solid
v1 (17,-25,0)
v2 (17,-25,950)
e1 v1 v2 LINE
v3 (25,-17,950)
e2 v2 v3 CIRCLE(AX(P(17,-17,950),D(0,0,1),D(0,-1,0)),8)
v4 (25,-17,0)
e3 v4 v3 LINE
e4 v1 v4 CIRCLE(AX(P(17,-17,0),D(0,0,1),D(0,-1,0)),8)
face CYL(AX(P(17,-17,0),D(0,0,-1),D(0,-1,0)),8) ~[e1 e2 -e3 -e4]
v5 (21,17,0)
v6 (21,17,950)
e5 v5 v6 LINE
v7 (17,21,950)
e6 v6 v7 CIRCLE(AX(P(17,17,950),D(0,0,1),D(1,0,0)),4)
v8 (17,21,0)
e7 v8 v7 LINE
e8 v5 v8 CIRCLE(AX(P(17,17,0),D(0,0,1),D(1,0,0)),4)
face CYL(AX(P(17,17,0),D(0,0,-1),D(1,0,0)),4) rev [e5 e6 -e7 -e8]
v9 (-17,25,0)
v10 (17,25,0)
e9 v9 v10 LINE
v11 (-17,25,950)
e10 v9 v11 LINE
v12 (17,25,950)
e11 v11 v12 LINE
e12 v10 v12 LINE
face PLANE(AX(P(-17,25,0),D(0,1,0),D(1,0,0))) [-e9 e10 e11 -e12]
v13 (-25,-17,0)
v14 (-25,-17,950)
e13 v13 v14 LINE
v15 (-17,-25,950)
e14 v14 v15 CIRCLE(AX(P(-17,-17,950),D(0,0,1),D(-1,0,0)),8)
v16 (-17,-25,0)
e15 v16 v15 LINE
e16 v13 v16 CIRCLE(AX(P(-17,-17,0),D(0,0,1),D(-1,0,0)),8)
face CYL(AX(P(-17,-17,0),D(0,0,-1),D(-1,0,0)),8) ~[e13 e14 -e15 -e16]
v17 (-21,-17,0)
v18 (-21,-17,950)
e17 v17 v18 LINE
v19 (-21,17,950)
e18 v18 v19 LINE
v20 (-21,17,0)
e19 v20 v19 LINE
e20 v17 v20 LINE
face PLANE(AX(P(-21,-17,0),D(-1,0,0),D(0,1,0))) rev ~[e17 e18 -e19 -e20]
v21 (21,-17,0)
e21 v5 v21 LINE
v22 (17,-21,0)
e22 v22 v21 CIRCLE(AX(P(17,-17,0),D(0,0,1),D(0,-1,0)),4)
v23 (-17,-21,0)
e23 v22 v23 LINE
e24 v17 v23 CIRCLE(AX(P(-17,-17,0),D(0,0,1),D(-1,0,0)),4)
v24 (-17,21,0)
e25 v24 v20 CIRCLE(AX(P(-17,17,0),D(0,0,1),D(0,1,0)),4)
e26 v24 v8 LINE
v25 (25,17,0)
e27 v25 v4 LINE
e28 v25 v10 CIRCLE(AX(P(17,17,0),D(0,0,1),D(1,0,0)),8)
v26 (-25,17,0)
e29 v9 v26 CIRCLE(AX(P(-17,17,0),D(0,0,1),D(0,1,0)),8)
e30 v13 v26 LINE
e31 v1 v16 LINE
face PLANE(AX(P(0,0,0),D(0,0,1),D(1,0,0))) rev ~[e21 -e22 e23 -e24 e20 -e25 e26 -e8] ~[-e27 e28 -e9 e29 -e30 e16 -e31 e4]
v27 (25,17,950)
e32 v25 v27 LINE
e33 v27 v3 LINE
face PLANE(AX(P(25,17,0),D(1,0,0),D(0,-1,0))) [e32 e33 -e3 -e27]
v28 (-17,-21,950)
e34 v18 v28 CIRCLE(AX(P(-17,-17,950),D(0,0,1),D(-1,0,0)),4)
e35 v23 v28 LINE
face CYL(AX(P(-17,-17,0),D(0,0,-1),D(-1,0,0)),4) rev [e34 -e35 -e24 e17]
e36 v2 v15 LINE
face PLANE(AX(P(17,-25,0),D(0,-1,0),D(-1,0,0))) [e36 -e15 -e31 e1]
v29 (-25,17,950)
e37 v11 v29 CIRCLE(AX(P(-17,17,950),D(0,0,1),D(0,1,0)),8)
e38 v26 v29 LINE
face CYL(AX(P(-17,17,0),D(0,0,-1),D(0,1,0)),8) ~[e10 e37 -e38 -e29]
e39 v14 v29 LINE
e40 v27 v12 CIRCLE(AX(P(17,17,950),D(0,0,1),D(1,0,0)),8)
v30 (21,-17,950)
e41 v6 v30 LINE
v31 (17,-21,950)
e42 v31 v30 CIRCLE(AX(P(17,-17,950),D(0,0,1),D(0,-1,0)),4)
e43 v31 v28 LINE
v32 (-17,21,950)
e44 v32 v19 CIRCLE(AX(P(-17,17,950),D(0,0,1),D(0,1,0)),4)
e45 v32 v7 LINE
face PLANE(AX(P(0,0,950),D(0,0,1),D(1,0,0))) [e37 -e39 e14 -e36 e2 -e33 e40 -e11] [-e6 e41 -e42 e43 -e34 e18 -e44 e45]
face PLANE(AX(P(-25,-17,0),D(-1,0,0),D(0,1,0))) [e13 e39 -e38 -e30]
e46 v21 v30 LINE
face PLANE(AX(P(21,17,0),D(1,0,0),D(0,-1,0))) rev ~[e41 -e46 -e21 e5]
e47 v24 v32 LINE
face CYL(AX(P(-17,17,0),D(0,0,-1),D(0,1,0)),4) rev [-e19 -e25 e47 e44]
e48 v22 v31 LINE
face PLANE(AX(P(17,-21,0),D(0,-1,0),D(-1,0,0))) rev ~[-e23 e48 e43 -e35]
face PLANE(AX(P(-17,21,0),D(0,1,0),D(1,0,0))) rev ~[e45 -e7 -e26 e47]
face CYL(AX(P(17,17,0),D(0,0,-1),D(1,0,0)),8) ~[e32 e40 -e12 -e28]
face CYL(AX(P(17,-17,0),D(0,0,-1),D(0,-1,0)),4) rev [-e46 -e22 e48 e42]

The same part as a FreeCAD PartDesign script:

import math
import FreeCAD as App
import Part
import Sketcher

V = App.Vector

doc = App.newDocument("Part")
params = doc.addObject("Spreadsheet::Sheet", "Params")
for row, (alias, value) in enumerate([
    ("sketch1_radius", "8 mm"),
    ("sketch1_radius2", "4 mm"),
    ("pad1_length", "950 mm"),
], start=1):
    params.set(f"A{row}", alias)
    params.set(f"B{row}", "=" + value)
    params.setAlias(f"B{row}", alias)

body = doc.addObject("PartDesign::Body", "Body")

# Sketch on XY plane
sketch1 = body.newObject("Sketcher::SketchObject", "Sketch")
sketch1.AttachmentSupport = (doc.getObject("XY_Plane"), [""])
sketch1.MapMode = "FlatFace"
sketch1.addGeometry([
    Part.LineSegment(V(-25, 17, 0), V(-25, -17, 0)),  # 0
    Part.ArcOfCircle(Part.Circle(V(-17, -17, 0), V(0, 0, 1), 8), math.radians(180), math.radians(270)),  # 1
    Part.LineSegment(V(-17, -25, 0), V(17, -25, 0)),  # 2
    Part.ArcOfCircle(Part.Circle(V(17, -17, 0), V(0, 0, 1), 8), math.radians(-90), math.radians(0)),  # 3
    Part.LineSegment(V(25, -17, 0), V(25, 17, 0)),  # 4
    Part.ArcOfCircle(Part.Circle(V(17, 17, 0), V(0, 0, 1), 8), math.radians(0), math.radians(90)),  # 5
    Part.LineSegment(V(17, 25, 0), V(-17, 25, 0)),  # 6
    Part.ArcOfCircle(Part.Circle(V(-17, 17, 0), V(0, 0, 1), 8), math.radians(90), math.radians(180)),  # 7
    Part.ArcOfCircle(Part.Circle(V(-17, 17, 0), V(0, 0, 1), 4), math.radians(90), math.radians(180)),  # 8
    Part.LineSegment(V(-17, 21, 0), V(17, 21, 0)),  # 9
    Part.ArcOfCircle(Part.Circle(V(17, 17, 0), V(0, 0, 1), 4), math.radians(0), math.radians(90)),  # 10
    Part.LineSegment(V(21, 17, 0), V(21, -17, 0)),  # 11
    Part.ArcOfCircle(Part.Circle(V(17, -17, 0), V(0, 0, 1), 4), math.radians(-90), math.radians(0)),  # 12
    Part.LineSegment(V(17, -21, 0), V(-17, -21, 0)),  # 13
    Part.ArcOfCircle(Part.Circle(V(-17, -17, 0), V(0, 0, 1), 4), math.radians(180), math.radians(270)),  # 14
    Part.LineSegment(V(-21, -17, 0), V(-21, 17, 0)),  # 15
], False)
sketch1.addConstraint([
    Sketcher.Constraint("Tangent", 0, 2, 1, 1),
    Sketcher.Constraint("Tangent", 1, 2, 2, 1),
    Sketcher.Constraint("Tangent", 2, 2, 3, 1),
    Sketcher.Constraint("Tangent", 3, 2, 4, 1),
    Sketcher.Constraint("Tangent", 4, 2, 5, 1),
    Sketcher.Constraint("Tangent", 5, 2, 6, 1),
    Sketcher.Constraint("Tangent", 6, 2, 7, 1),
    Sketcher.Constraint("Tangent", 7, 2, 0, 1),
    Sketcher.Constraint("Tangent", 8, 1, 9, 1),
    Sketcher.Constraint("Tangent", 9, 2, 10, 2),
    Sketcher.Constraint("Tangent", 10, 1, 11, 1),
    Sketcher.Constraint("Tangent", 11, 2, 12, 2),
    Sketcher.Constraint("Tangent", 12, 1, 13, 1),
    Sketcher.Constraint("Tangent", 13, 2, 14, 2),
    Sketcher.Constraint("Tangent", 14, 1, 15, 1),
    Sketcher.Constraint("Tangent", 15, 2, 8, 2),
    Sketcher.Constraint("Vertical", 0),
    Sketcher.Constraint("Horizontal", 2),
    Sketcher.Constraint("Vertical", 4),
    Sketcher.Constraint("Horizontal", 6),
    Sketcher.Constraint("Horizontal", 9),
    Sketcher.Constraint("Vertical", 11),
    Sketcher.Constraint("Horizontal", 13),
    Sketcher.Constraint("Vertical", 15),
    Sketcher.Constraint("Coincident", 8, 3, 7, 3),
    Sketcher.Constraint("Coincident", 10, 3, 5, 3),
    Sketcher.Constraint("Coincident", 12, 3, 3, 3),
    Sketcher.Constraint("Equal", 1, 3),
    Sketcher.Constraint("Equal", 3, 5),
    Sketcher.Constraint("Equal", 5, 7),
    Sketcher.Constraint("Equal", 12, 14),
    Sketcher.Constraint("Symmetric", 1, 3, 5, 3, -1, 1),
    Sketcher.Constraint("Equal", 13, 0),
    Sketcher.Constraint("Radius", 1, 8.0),
    Sketcher.Constraint("Radius", 8, 4.0),
    Sketcher.Constraint("DistanceX", 0, 2, -1, 1, 25.0),
])
sketch1.setExpression("Constraints[33]", "Params.sketch1_radius")
sketch1.setExpression("Constraints[34]", "Params.sketch1_radius2")
pad1 = body.newObject("PartDesign::Pad", "Pad")
pad1.Profile = sketch1
pad1.setExpression("Length", "Params.pad1_length")

doc.recompute()
